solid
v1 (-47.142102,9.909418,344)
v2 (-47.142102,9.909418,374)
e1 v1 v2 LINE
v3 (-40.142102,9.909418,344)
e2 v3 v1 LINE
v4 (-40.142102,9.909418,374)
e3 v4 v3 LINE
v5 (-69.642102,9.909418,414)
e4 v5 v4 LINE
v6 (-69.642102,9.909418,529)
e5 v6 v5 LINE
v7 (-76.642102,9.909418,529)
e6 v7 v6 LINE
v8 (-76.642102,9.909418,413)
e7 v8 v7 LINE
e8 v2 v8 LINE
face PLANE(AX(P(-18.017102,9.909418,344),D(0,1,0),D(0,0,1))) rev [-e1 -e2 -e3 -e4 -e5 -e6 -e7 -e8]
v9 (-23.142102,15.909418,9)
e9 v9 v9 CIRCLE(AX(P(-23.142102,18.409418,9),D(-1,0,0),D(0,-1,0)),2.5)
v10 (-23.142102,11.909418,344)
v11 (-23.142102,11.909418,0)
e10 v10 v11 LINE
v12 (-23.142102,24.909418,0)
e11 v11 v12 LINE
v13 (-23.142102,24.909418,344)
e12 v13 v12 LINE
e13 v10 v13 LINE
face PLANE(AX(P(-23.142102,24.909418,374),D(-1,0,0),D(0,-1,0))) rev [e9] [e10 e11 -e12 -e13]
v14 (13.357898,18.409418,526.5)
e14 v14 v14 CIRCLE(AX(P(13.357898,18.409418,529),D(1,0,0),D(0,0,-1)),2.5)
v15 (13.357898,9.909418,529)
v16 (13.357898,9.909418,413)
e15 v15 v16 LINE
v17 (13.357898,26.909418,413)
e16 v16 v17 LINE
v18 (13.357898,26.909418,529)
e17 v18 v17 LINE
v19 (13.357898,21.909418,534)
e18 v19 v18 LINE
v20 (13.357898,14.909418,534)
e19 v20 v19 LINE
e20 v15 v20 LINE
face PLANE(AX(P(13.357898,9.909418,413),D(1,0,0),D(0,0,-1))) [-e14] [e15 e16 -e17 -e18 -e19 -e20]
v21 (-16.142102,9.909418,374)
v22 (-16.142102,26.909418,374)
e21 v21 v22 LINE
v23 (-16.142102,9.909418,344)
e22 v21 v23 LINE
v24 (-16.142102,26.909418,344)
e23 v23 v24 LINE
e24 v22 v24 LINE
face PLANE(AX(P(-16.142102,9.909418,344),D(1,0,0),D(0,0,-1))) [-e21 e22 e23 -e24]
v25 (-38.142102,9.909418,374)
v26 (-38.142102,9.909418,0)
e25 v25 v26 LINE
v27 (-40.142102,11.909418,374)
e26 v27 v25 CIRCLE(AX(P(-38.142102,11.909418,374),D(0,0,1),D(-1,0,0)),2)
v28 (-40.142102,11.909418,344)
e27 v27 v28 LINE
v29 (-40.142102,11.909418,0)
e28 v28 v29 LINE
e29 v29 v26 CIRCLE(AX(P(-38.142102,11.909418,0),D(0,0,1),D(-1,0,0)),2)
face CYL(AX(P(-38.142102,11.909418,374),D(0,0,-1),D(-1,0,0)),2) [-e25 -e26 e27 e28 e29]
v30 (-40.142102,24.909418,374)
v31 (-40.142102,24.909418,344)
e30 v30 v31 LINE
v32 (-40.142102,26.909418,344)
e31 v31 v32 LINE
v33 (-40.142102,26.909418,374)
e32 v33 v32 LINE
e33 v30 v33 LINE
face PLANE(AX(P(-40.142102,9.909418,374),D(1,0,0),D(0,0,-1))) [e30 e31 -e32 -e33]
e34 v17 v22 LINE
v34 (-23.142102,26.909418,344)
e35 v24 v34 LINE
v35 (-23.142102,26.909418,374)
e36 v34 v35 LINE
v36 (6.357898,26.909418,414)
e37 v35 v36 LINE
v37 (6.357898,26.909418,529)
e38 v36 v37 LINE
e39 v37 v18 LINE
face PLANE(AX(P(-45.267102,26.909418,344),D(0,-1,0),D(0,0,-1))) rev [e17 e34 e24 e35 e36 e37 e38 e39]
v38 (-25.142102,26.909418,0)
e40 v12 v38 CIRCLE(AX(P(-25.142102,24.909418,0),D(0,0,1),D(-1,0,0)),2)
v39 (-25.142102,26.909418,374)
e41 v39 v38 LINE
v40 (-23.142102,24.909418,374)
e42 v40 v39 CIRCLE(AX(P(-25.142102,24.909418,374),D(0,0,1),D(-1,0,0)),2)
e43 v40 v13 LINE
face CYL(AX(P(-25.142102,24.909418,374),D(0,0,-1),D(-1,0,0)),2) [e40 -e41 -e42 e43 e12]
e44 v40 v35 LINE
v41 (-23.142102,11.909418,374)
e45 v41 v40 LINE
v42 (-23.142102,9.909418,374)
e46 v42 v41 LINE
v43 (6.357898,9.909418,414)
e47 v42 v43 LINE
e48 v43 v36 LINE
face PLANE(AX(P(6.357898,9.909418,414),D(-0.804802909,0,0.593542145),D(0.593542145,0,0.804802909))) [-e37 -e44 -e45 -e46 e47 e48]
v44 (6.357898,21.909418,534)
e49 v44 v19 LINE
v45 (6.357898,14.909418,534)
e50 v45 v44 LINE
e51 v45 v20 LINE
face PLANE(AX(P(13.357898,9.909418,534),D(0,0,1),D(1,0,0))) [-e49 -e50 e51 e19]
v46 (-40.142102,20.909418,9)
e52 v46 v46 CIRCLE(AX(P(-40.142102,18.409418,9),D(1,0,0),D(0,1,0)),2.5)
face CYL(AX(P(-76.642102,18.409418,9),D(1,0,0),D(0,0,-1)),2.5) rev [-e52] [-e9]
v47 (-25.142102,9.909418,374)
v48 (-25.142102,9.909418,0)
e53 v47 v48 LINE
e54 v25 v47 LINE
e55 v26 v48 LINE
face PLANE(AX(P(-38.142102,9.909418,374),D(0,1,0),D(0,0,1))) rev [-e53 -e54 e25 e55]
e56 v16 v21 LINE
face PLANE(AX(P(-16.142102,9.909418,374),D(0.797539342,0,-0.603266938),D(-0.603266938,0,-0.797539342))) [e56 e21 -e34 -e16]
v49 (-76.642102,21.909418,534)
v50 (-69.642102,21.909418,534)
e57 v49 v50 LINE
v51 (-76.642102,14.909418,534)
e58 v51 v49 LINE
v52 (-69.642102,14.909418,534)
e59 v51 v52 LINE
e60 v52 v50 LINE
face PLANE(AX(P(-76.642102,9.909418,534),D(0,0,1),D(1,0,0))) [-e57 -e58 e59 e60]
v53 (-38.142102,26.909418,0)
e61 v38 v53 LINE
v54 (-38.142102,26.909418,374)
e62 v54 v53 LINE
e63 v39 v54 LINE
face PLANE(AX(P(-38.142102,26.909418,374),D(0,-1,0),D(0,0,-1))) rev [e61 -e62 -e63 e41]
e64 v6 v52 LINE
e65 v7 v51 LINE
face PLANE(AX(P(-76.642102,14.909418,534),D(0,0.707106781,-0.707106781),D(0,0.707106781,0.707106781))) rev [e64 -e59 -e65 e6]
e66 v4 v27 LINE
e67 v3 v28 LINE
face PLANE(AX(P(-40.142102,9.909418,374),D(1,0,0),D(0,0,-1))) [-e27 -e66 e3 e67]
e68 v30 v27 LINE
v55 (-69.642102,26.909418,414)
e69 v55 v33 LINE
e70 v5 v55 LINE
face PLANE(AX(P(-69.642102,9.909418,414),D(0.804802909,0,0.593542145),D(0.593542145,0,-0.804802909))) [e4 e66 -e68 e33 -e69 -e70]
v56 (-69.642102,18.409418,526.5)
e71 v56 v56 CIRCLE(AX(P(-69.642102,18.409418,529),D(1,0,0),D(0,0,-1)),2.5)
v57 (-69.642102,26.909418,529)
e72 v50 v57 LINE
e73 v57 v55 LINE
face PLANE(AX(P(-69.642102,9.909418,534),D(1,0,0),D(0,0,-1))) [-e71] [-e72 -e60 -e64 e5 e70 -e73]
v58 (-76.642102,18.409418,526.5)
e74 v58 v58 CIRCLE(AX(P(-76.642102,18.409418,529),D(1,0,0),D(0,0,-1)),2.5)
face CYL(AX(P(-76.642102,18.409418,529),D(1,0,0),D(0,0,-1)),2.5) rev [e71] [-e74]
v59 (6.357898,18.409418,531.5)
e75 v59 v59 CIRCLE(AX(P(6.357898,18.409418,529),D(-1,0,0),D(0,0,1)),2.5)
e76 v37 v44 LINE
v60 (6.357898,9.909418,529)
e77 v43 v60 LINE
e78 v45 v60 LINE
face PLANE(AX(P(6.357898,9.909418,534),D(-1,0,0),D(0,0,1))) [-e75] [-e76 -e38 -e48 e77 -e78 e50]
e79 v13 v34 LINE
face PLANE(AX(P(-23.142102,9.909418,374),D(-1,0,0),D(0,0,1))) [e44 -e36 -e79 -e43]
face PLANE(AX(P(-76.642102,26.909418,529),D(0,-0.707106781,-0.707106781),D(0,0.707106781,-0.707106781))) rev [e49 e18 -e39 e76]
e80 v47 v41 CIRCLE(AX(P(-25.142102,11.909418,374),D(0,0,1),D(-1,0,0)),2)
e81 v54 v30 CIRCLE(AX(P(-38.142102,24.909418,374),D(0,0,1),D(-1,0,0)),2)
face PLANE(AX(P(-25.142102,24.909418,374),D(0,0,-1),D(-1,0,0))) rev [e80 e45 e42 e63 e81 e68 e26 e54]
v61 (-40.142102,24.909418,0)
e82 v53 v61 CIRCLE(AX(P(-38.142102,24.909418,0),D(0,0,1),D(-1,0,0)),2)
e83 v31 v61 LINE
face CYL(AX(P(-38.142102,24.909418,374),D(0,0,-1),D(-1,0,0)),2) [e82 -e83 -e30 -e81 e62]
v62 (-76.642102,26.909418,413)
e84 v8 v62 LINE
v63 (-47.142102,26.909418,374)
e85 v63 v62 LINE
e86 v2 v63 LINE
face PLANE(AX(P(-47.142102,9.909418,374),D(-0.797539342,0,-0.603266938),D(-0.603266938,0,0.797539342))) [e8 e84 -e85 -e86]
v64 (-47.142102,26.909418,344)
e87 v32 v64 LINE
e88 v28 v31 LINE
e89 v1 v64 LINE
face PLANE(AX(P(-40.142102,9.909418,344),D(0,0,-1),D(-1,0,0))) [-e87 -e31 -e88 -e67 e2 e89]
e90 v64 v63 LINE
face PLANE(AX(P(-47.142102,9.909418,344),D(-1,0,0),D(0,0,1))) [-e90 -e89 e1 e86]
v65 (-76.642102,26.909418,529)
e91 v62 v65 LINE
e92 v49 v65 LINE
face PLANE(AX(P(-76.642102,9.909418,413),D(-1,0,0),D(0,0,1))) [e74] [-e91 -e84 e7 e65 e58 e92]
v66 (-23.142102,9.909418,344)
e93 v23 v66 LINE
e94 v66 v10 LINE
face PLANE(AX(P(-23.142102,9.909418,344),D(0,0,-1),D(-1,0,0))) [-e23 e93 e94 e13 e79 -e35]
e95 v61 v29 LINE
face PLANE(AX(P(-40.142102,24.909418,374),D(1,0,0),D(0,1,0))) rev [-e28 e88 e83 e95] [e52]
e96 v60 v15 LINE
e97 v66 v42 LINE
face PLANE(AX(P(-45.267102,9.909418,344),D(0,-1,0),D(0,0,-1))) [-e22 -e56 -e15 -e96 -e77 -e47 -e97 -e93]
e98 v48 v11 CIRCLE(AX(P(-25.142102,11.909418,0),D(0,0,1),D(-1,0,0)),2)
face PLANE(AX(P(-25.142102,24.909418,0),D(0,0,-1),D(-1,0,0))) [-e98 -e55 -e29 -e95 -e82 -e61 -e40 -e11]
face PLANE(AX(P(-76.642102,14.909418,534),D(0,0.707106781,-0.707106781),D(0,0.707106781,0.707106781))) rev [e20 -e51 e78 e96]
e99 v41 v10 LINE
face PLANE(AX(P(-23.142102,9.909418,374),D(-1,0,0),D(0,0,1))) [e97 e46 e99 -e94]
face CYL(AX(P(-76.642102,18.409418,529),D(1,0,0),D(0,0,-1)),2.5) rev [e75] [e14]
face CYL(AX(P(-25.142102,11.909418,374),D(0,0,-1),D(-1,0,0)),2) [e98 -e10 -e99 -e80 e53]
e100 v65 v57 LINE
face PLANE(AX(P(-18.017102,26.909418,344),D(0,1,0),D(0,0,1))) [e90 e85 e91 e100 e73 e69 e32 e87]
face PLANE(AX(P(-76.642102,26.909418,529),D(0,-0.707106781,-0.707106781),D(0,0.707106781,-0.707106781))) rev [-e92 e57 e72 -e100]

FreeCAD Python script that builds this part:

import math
import FreeCAD as App
import Part
import Sketcher
from FreeCAD import Vector


def add_polygon(sketch, points):
    """Adds a closed chain of lines whose ends are joined by coincident constraints."""
    first, n = sketch.GeometryCount, len(points)
    for a, b in zip(points, points[1:] + points[:1]):
        sketch.addGeometry(Part.LineSegment(App.Vector(*a, 0), App.Vector(*b, 0)), False)
    for i in range(n):
        sketch.addConstraint(Sketcher.Constraint("Coincident", first + i, 2, first + (i + 1) % n, 1))

doc = App.newDocument("Part")
params = doc.addObject("Spreadsheet::Sheet", "Params")
for row, (alias, value) in enumerate([
    ("sketch1_radius", "2 mm"),
    ("sketch1_width", "13 mm"),
    ("pad1_length", "374 mm"),
    ("sketch2_width", "7 mm"),
    ("sketch2_height", "30 mm"),
    ("sketch2_height2", "120 mm"),
    ("sketch2_height3", "121 mm"),
    ("pad2_length", "17 mm"),
    ("sketch3_diameter", "5 mm"),
    ("sketch3_width", "7 mm"),
], start=1):
    params.set(f"A{row}", alias)
    params.set(f"B{row}", "=" + value)
    params.setAlias(f"B{row}", alias)

body = doc.addObject("PartDesign::Body", "Body")

# Sketch on XY plane
sketch1 = body.newObject("Sketcher::SketchObject", "Sketch")
sketch1.AttachmentSupport = (doc.getObject("XY_Plane"), [""])
sketch1.MapMode = "FlatFace"
sketch1.addGeometry(Part.LineSegment(Vector(-25.142102, 26.909418, 0), Vector(-38.142102, 26.909418, 0)), False)
sketch1.addGeometry(Part.ArcOfCircle(Part.Circle(Vector(-38.142102, 24.909418, 0), Vector(0, 0, 1), 2), math.radians(90), math.radians(180)), False)
sketch1.addGeometry(Part.LineSegment(Vector(-40.142102, 24.909418, 0), Vector(-40.142102, 11.909418, 0)), False)
sketch1.addGeometry(Part.ArcOfCircle(Part.Circle(Vector(-38.142102, 11.909418, 0), Vector(0, 0, 1), 2), math.radians(180), math.radians(270)), False)
sketch1.addGeometry(Part.LineSegment(Vector(-38.142102, 9.909418, 0), Vector(-25.142102, 9.909418, 0)), False)
sketch1.addGeometry(Part.ArcOfCircle(Part.Circle(Vector(-25.142102, 11.909418, 0), Vector(0, 0, 1), 2), math.radians(-90), math.radians(0)), False)
sketch1.addGeometry(Part.LineSegment(Vector(-23.142102, 11.909418, 0), Vector(-23.142102, 24.909418, 0)), False)
sketch1.addGeometry(Part.ArcOfCircle(Part.Circle(Vector(-25.142102, 24.909418, 0), Vector(0, 0, 1), 2), math.radians(0), math.radians(90)), False)
sketch1.addConstraint(Sketcher.Constraint("Tangent", 0, 2, 1, 1))
sketch1.addConstraint(Sketcher.Constraint("Tangent", 1, 2, 2, 1))
sketch1.addConstraint(Sketcher.Constraint("Tangent", 2, 2, 3, 1))
sketch1.addConstraint(Sketcher.Constraint("Tangent", 3, 2, 4, 1))
sketch1.addConstraint(Sketcher.Constraint("Tangent", 4, 2, 5, 1))
sketch1.addConstraint(Sketcher.Constraint("Tangent", 5, 2, 6, 1))
sketch1.addConstraint(Sketcher.Constraint("Tangent", 6, 2, 7, 1))
sketch1.addConstraint(Sketcher.Constraint("Tangent", 7, 2, 0, 1))
sketch1.addConstraint(Sketcher.Constraint("Horizontal", 0))
sketch1.addConstraint(Sketcher.Constraint("Vertical", 2))
sketch1.addConstraint(Sketcher.Constraint("Horizontal", 4))
sketch1.addConstraint(Sketcher.Constraint("Vertical", 6))
sketch1.addConstraint(Sketcher.Constraint("Equal", 1, 3))
sketch1.addConstraint(Sketcher.Constraint("Equal", 3, 5))
sketch1.addConstraint(Sketcher.Constraint("Equal", 5, 7))
sketch1.addConstraint(Sketcher.Constraint("Equal", 4, 2))
sketch1.addConstraint(Sketcher.Constraint("Radius", 1, 2.0))
sketch1.addConstraint(Sketcher.Constraint("DistanceX", 0, 2, 0, 1, 13.0))
sketch1.addConstraint(Sketcher.Constraint("DistanceX", 1, 3, -1, 1, 38.142102))
sketch1.addConstraint(Sketcher.Constraint("DistanceY", -1, 1, 1, 3, 24.909418))
sketch1.setExpression("Constraints[16]", "Params.sketch1_radius")
sketch1.setExpression("Constraints[17]", "Params.sketch1_width")
pad1 = body.newObject("PartDesign::Pad", "Pad")
pad1.Profile = sketch1
pad1.setExpression("Length", "Params.pad1_length")

# Sketch on XZ plane
sketch2 = body.newObject("Sketcher::SketchObject", "Sketch001")
sketch2.AttachmentSupport = (doc.getObject("XZ_Plane"), [""])
sketch2.MapMode = "FlatFace"
sketch2.AttachmentOffset = App.Placement(Vector(0, 0, -26.909418), App.Rotation())
add_polygon(sketch2, [(-23.142102, 344), (-23.142102, 374), (6.357898, 414), (6.357898, 534), (13.357898, 534), (13.357898, 413), (-16.142102, 374), (-16.142102, 344)])  # lines 0-7
add_polygon(sketch2, [(-40.142102, 374), (-40.142102, 344), (-47.142102, 344), (-47.142102, 374), (-76.642102, 413), (-76.642102, 534), (-69.642102, 534), (-69.642102, 414)])  # lines 8-15
sketch2.addConstraint(Sketcher.Constraint("Vertical", 0))
sketch2.addConstraint(Sketcher.Constraint("Vertical", 2))
sketch2.addConstraint(Sketcher.Constraint("Horizontal", 3))
sketch2.addConstraint(Sketcher.Constraint("Vertical", 4))
sketch2.addConstraint(Sketcher.Constraint("Vertical", 6))
sketch2.addConstraint(Sketcher.Constraint("Horizontal", 7))
sketch2.addConstraint(Sketcher.Constraint("Vertical", 8))
sketch2.addConstraint(Sketcher.Constraint("Horizontal", 9))
sketch2.addConstraint(Sketcher.Constraint("Vertical", 10))
sketch2.addConstraint(Sketcher.Constraint("Vertical", 12))
sketch2.addConstraint(Sketcher.Constraint("Horizontal", 13))
sketch2.addConstraint(Sketcher.Constraint("Vertical", 14))
sketch2.addConstraint(Sketcher.Constraint("Horizontal", 0, 2, 5, 2))
sketch2.addConstraint(Sketcher.Constraint("Horizontal", 7, 2, 8, 2))
sketch2.addConstraint(Sketcher.Constraint("Horizontal", 5, 2, 10, 2))
sketch2.addConstraint(Sketcher.Constraint("Horizontal", 4, 2, 11, 2))
sketch2.addConstraint(Sketcher.Constraint("Horizontal", 3, 2, 12, 2))
sketch2.addConstraint(Sketcher.Constraint("Horizontal", 1, 2, 14, 2))
sketch2.addConstraint(Sketcher.Constraint("Horizontal", 10, 2, 15, 2))
sketch2.addConstraint(Sketcher.Constraint("Equal", 3, 7))
sketch2.addConstraint(Sketcher.Constraint("Equal", 7, 9))
sketch2.addConstraint(Sketcher.Constraint("Equal", 9, 13))
sketch2.addConstraint(Sketcher.Constraint("Equal", 5, 11))
sketch2.addConstraint(Sketcher.Constraint("DistanceX", 3, 1, 3, 2, 7.0))
sketch2.addConstraint(Sketcher.Constraint("DistanceY", 0, 1, 0, 2, 30.0))
sketch2.addConstraint(Sketcher.Constraint("DistanceY", 2, 1, 2, 2, 120.0))
sketch2.addConstraint(Sketcher.Constraint("DistanceY", 4, 2, 4, 1, 121.0))
sketch2.addConstraint(Sketcher.Constraint("DistanceY", -1, 1, 0, 2, 374.0))
sketch2.addConstraint(Sketcher.Constraint("DistanceY", -1, 1, 1, 2, 414.0))
sketch2.addConstraint(Sketcher.Constraint("DistanceX", 8, 2, 7, 2, 17.0))
sketch2.addConstraint(Sketcher.Constraint("DistanceX", 12, 2, 2, 2, 83.0))
sketch2.addConstraint(Sketcher.Constraint("DistanceX", 0, 2, -1, 1, 23.142102))
sketch2.setExpression("Constraints[39]", "Params.sketch2_width")
sketch2.setExpression("Constraints[40]", "Params.sketch2_height")
sketch2.setExpression("Constraints[41]", "Params.sketch2_height2")
sketch2.setExpression("Constraints[42]", "Params.sketch2_height3")
pad2 = body.newObject("PartDesign::Pad", "Pad001")
pad2.Profile = sketch2
pad2.setExpression("Length", "Params.pad2_length")

# Sketch on YZ plane
sketch3 = body.newObject("Sketcher::SketchObject", "Sketch002")
sketch3.AttachmentSupport = (doc.getObject("YZ_Plane"), [""])
sketch3.MapMode = "FlatFace"
sketch3.AttachmentOffset = App.Placement(Vector(0, 0, 13.357898), App.Rotation())
sketch3.addGeometry(Part.Circle(Vector(18.409418, 529, 0), Vector(0, 0, 1), 2.5), False)  # 0
sketch3.addGeometry(Part.Circle(Vector(18.409418, 9, 0), Vector(0, 0, 1), 2.5), False)  # 1
add_polygon(sketch3, [(21.909418, 534), (26.909418, 529), (37.450884, 531.5), (40.050556, 552.141139), (6.720406, 556.338944), (0, 529), (9.909418, 529), (14.909418, 534)])  # lines 2-9
sketch3.addConstraint(Sketcher.Constraint("Horizontal", 7))
sketch3.addConstraint(Sketcher.Constraint("Horizontal", 9))
sketch3.addConstraint(Sketcher.Constraint("Equal", 0, 1))
sketch3.addConstraint(Sketcher.Constraint("PointOnObject", 6, 2, -2))
sketch3.addConstraint(Sketcher.Constraint("Perpendicular", 4, 5))
sketch3.addConstraint(Sketcher.Constraint("Perpendicular", 2, 8))
sketch3.addConstraint(Sketcher.Constraint("Horizontal", 0, 3, 2, 2))
sketch3.addConstraint(Sketcher.Constraint("Horizontal", 2, 2, 6, 2))
sketch3.addConstraint(Sketcher.Constraint("Vertical", 0, 3, 1, 3))
sketch3.addConstraint(Sketcher.Constraint("Equal", 2, 8))
sketch3.addConstraint(Sketcher.Constraint("Diameter", 0, 5.0))
sketch3.addConstraint(Sketcher.Constraint("DistanceX", 9, 1, 9, 2, 7.0))
sketch3.addConstraint(Sketcher.Constraint("DistanceY", -1, 1, 0, 3, 529.0))
sketch3.addConstraint(Sketcher.Constraint("DistanceY", -1, 1, 1, 3, 9.0))
sketch3.addConstraint(Sketcher.Constraint("DistanceY", -1, 1, 8, 2, 534.0))
sketch3.addConstraint(Sketcher.Constraint("DistanceY", -1, 1, 3, 2, 531.5))
sketch3.addConstraint(Sketcher.Constraint("DistanceX", 0, 3, 2, 2, 8.5))
sketch3.addConstraint(Sketcher.Constraint("Distance", 3, 10.833859))
sketch3.addConstraint(Sketcher.Constraint("Distance", 5, 33.593459))
sketch3.addConstraint(Sketcher.Constraint("Distance", 6, 28.152828))
sketch3.addConstraint(Sketcher.Constraint("DistanceX", 7, 1, 7, 2, 9.909418))
sketch3.addConstraint(Sketcher.Constraint("DistanceY", -1, 1, 4, 2, 552.141139))
sketch3.setExpression("Constraints[18]", "Params.sketch3_diameter")
sketch3.setExpression("Constraints[19]", "Params.sketch3_width")
pocket1 = body.newObject("PartDesign::Pocket", "Pocket")
pocket1.Profile = sketch3
pocket1.Type = "ThroughAll"

doc.recompute()
